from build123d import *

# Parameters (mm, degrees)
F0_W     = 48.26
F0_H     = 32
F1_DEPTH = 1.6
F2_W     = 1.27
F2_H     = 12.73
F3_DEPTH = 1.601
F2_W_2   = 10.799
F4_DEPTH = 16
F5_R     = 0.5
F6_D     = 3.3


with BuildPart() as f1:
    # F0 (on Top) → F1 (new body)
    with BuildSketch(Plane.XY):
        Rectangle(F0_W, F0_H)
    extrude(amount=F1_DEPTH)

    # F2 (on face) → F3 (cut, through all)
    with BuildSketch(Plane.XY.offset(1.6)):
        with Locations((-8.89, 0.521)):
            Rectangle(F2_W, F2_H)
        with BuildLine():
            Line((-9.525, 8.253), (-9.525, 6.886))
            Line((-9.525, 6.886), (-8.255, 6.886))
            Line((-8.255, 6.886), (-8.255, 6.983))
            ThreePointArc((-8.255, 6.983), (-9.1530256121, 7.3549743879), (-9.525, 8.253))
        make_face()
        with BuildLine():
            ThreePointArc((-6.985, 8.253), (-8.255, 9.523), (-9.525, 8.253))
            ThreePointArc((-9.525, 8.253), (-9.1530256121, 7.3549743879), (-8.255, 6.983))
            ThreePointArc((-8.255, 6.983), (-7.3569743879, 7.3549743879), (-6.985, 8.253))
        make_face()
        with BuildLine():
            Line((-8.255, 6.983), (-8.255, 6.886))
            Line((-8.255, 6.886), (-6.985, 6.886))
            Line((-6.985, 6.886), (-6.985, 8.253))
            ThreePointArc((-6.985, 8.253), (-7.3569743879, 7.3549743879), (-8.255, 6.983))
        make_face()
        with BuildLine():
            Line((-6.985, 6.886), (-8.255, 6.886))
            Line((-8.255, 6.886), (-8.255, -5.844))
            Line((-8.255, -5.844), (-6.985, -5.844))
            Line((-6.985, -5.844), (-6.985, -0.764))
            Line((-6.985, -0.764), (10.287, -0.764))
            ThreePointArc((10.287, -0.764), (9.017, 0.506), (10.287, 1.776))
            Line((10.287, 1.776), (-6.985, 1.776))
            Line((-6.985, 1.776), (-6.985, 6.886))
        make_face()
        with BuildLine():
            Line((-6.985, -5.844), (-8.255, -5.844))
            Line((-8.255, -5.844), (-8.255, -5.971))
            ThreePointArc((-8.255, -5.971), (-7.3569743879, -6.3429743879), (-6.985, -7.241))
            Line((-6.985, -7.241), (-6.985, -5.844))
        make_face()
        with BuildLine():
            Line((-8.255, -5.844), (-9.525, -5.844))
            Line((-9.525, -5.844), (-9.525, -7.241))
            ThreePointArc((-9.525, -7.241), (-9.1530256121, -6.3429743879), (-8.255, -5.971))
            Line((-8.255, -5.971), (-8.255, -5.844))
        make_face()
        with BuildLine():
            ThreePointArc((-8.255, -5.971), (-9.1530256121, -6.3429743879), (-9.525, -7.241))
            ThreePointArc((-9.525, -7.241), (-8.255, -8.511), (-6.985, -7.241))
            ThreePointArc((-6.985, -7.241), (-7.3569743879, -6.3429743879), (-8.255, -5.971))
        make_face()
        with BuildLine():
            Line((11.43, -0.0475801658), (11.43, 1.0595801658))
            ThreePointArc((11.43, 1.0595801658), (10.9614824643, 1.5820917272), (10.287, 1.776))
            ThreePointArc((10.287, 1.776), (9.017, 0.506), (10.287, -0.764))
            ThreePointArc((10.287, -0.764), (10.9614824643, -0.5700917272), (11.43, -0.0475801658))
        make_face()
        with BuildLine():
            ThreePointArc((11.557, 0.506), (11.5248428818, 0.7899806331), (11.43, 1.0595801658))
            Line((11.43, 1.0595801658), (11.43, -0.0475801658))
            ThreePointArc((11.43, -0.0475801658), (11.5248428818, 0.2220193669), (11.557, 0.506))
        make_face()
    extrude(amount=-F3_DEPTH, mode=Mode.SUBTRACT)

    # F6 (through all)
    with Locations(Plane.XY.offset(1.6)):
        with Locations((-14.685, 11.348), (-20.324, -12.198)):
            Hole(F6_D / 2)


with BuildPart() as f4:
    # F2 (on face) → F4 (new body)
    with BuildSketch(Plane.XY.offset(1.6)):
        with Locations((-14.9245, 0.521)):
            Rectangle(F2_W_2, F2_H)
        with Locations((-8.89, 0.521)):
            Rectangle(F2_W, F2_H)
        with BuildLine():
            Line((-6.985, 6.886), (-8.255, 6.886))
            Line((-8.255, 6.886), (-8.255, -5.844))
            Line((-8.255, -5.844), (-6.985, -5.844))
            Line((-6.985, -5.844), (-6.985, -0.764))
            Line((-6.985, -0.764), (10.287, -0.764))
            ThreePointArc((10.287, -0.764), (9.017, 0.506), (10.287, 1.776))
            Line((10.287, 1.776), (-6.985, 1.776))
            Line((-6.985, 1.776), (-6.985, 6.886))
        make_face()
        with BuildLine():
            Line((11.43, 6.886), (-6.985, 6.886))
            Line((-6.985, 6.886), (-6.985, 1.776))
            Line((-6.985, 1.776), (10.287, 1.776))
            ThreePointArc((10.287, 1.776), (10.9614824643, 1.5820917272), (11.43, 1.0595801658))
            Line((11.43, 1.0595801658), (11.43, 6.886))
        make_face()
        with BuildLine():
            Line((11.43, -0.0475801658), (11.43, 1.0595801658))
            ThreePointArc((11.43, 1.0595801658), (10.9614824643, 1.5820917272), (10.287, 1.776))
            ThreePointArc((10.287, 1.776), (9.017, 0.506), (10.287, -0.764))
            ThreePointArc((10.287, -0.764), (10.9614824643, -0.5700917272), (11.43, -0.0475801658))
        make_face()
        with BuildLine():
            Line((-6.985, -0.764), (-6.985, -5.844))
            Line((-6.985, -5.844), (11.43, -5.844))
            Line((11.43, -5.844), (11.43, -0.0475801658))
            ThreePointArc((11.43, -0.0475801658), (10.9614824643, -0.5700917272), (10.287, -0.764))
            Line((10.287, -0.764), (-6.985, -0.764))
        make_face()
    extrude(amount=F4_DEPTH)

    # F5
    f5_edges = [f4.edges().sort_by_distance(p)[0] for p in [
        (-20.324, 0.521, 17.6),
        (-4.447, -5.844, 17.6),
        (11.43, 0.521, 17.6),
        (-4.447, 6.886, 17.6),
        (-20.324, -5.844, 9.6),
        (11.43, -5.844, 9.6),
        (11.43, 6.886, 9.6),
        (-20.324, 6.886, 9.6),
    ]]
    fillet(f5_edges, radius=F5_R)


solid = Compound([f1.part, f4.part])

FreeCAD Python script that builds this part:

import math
import FreeCAD as App
import Part
import Sketcher
from FreeCAD import Vector


def edges_at(feature, points):
    """Names of the edges that pass closest to the given points."""
    edges = feature.Shape.Edges
    near = lambda p: min(range(len(edges)), key=lambda i: edges[i].distToShape(Part.Vertex(*p))[0])
    return sorted({f"Edge{near(p) + 1}" for p in points})


def add_polygon(sketch, points):
    """Adds a closed chain of lines whose ends are joined by coincident constraints."""
    first, n = sketch.GeometryCount, len(points)
    for a, b in zip(points, points[1:] + points[:1]):
        sketch.addGeometry(Part.LineSegment(App.Vector(*a, 0), App.Vector(*b, 0)), False)
    for i in range(n):
        sketch.addConstraint(Sketcher.Constraint("Coincident", first + i, 2, first + (i + 1) % n, 1))

doc = App.newDocument("Part")
body = doc.addObject("PartDesign::Body", "Body")

sketch1 = body.newObject("Sketcher::SketchObject", "Sketch")
sketch1.AttachmentSupport = (doc.getObject("XY_Plane"), [""])
sketch1.MapMode = "FlatFace"
add_polygon(sketch1, [(-24, 16), (-24, -16), (24, -16), (24, 16)])
sketch1.addConstraint([
    Sketcher.Constraint("Vertical", 0),
    Sketcher.Constraint("Horizontal", 1),
    Sketcher.Constraint("Vertical", 2),
    Sketcher.Constraint("Horizontal", 3),
    Sketcher.Constraint("Symmetric", 0, 2, 2, 2, -1, 1),
    Sketcher.Constraint("DistanceY", 0, 2, 0, 1, 32.0),
    Sketcher.Constraint("DistanceX", 1, 1, 1, 2, 48.26),
])
pad1 = body.newObject("PartDesign::Pad", "Pad")
pad1.Profile = sketch1
pad1.Length = 1.6

sketch2 = body.newObject("Sketcher::SketchObject", "Sketch001")
sketch2.AttachmentSupport = (doc.getObject("XY_Plane"), [""])
sketch2.MapMode = "FlatFace"
sketch2.AttachmentOffset = App.Placement(Vector(0, 0, 1.6), App.Rotation())
sketch2.addGeometry([
    Part.LineSegment(Vector(-7, -7.2, 0), Vector(-7, -0.8, 0)),
    Part.LineSegment(Vector(-7, -0.8, 0), Vector(10.3, -0.8, 0)),
    Part.ArcOfCircle(Part.Circle(Vector(10.3, 0.5, 0), Vector(0, 0, 1), 1.3), math.radians(-90), math.radians(-26)),
    Part.ArcOfCircle(Part.Circle(Vector(10.3, 0.5, 0), Vector(0, 0, 1), 1.3), math.radians(-26), math.radians(0)),
    Part.ArcOfCircle(Part.Circle(Vector(10.3, 0.5, 0), Vector(0, 0, 1), 1.3), math.radians(0), math.radians(26)),
    Part.ArcOfCircle(Part.Circle(Vector(10.3, 0.5, 0), Vector(0, 0, 1), 1.3), math.radians(26), math.radians(90)),
    Part.LineSegment(Vector(10.3, 1.8, 0), Vector(-7, 1.8, 0)),
    Part.LineSegment(Vector(-7, 1.8, 0), Vector(-7, 8.3, 0)),
    Part.ArcOfCircle(Part.Circle(Vector(-8.3, 8.3, 0), Vector(0, 0, 1), 1.3), math.radians(0), math.radians(180)),
    Part.LineSegment(Vector(-9.5, 8.3, 0), Vector(-9.5, -7.2, 0)),
    Part.ArcOfCircle(Part.Circle(Vector(-8.3, -7.2, 0), Vector(0, 0, 1), 1.3), math.radians(180), math.radians(360)),
], False)
sketch2.addConstraint([
    Sketcher.Constraint("Coincident", 0, 2, 1, 1),
    Sketcher.Constraint("Tangent", 1, 2, 2, 1),
    Sketcher.Constraint("Tangent", 2, 2, 3, 1),
    Sketcher.Constraint("Tangent", 3, 2, 4, 1),
    Sketcher.Constraint("Tangent", 4, 2, 5, 1),
    Sketcher.Constraint("Tangent", 5, 2, 6, 1),
    Sketcher.Constraint("Coincident", 6, 2, 7, 1),
    Sketcher.Constraint("Tangent", 7, 2, 8, 1),
    Sketcher.Constraint("Tangent", 8, 2, 9, 1),
    Sketcher.Constraint("Tangent", 9, 2, 10, 1),
    Sketcher.Constraint("Tangent", 10, 2, 0, 1),
    Sketcher.Constraint("Vertical", 0),
    Sketcher.Constraint("Horizontal", 1),
    Sketcher.Constraint("Horizontal", 6),
    Sketcher.Constraint("Vertical", 7),
    Sketcher.Constraint("Vertical", 9),
    Sketcher.Constraint("Coincident", 4, 3, 2, 3),
    Sketcher.Constraint("Equal", 4, 5),
    Sketcher.Constraint("Equal", 5, 8),
    Sketcher.Constraint("Equal", 8, 10),
    Sketcher.Constraint("Horizontal", 5, 3, 3, 2),
    Sketcher.Constraint("Vertical", 2, 2, 4, 2),
    Sketcher.Constraint("Equal", 0, 7),
    Sketcher.Constraint("Radius", 2, 1.27),
    Sketcher.Constraint("DistanceX", 1, 1, 1, 2, 17.272),
    Sketcher.Constraint("DistanceY", 0, 1, 0, 2, 6.477),
    Sketcher.Constraint("DistanceX", -1, 1, 2, 2, 11.43),
    Sketcher.Constraint("DistanceX", -1, 1, 2, 3, 10.287),
    Sketcher.Constraint("DistanceY", -1, 1, 2, 3, 0.506),
])
pocket1 = body.newObject("PartDesign::Pocket", "Pocket")
pocket1.Profile = sketch2
pocket1.Type = "ThroughAll"

sketch3 = body.newObject("Sketcher::SketchObject", "Sketch002")
sketch3.AttachmentSupport = (doc.getObject("XY_Plane"), [""])
sketch3.MapMode = "FlatFace"
sketch3.AttachmentOffset = App.Placement(Vector(0, 0, 1.6), App.Rotation())
sketch3.addGeometry([
    Part.Circle(Vector(-14.7, 11.3, 0), Vector(0, 0, 1), 1.6),
    Part.Circle(Vector(-20.3, -12.2, 0), Vector(0, 0, 1), 1.6),
], False)
sketch3.addConstraint([
    Sketcher.Constraint("Equal", 0, 1),
    Sketcher.Constraint("Diameter", 0, 3.3),
    Sketcher.Constraint("DistanceX", 0, 3, -1, 1, 14.685),
    Sketcher.Constraint("DistanceY", -1, 1, 0, 3, 11.348),
    Sketcher.Constraint("DistanceX", 1, 3, -1, 1, 20.324),
    Sketcher.Constraint("DistanceY", 1, 3, -1, 1, 12.198),
])
doc.recompute()
hole = body.newObject("PartDesign::Hole", "Hole")
hole.Profile = sketch3
hole.ThreadType = "None"
hole.Diameter = 3.3
hole.DepthType = "ThroughAll"
body2 = doc.addObject("PartDesign::Body", "Body001")

sketch4 = body2.newObject("Sketcher::SketchObject", "Sketch003")
sketch4.AttachmentSupport = (doc.getObject("XY_Plane001"), [""])
sketch4.MapMode = "FlatFace"
sketch4.AttachmentOffset = App.Placement(Vector(0, 0, 1.6), App.Rotation())
add_polygon(sketch4, [(-20, 7), (-20, -6), (11, -6), (11, 7)])
sketch4.addConstraint([
    Sketcher.Constraint("Vertical", 0),
    Sketcher.Constraint("Horizontal", 1),
    Sketcher.Constraint("Vertical", 2),
    Sketcher.Constraint("Horizontal", 3),
    Sketcher.Constraint("DistanceY", 0, 2, 0, 1, 12.73),
    Sketcher.Constraint("DistanceX", 1, 1, 1, 2, 31.754),
    Sketcher.Constraint("DistanceX", -1, 1, 1, 2, 11.43),
    Sketcher.Constraint("DistanceY", 0, 2, -1, 1, 5.844),
])
pad2 = body2.newObject("PartDesign::Pad", "Pad001")
pad2.Profile = sketch4
pad2.Length = 16
doc.recompute()

fillet = body2.newObject("PartDesign::Fillet", "Fillet")
fillet.Base = (pad2, edges_at(pad2, [
    (-20.324, 0.521, 17.6),
    (-4.447, -5.844, 17.6),
    (11.43, 0.521, 17.6),
    (-4.447, 6.886, 17.6),
    (-20.324, -5.844, 9.6),
    (11.43, -5.844, 9.6),
    (11.43, 6.886, 9.6),
    (-20.324, 6.886, 9.6),
]))
fillet.Radius = 0.5

doc.recompute()
